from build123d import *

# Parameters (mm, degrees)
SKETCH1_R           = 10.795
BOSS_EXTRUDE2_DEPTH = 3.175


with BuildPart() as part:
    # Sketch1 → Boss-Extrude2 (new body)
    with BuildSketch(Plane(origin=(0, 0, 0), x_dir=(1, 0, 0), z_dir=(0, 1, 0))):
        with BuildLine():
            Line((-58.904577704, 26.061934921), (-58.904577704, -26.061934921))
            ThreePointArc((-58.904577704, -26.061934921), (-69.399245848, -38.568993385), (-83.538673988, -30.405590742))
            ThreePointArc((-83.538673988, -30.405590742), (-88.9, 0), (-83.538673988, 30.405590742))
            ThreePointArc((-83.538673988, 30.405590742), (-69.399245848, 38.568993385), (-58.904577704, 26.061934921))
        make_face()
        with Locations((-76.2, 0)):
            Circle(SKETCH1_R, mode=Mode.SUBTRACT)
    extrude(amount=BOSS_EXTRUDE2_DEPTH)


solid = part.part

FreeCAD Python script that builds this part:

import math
import FreeCAD as App
import Part
import Sketcher
Q = App.Units.Quantity

doc = App.newDocument("Part")
body = doc.addObject("PartDesign::Body", "Body")

# Sketch on XZ plane
sketch1 = body.newObject("Sketcher::SketchObject", "Sketch")
sketch1.AttachmentSupport = (doc.getObject("XZ_Plane"), [""])
sketch1.MapMode = "FlatFace"
sketch1.addGeometry(Part.LineSegment(App.Vector(-59, 26, 0), App.Vector(-59, -26, 0)), False)
sketch1.addGeometry(Part.ArcOfCircle(Part.Circle(App.Vector(-72, -26, 0), App.Vector(0, 0, 1), 13), math.radians(-160), math.radians(0)), False)
sketch1.addGeometry(Part.ArcOfCircle(Part.Circle(App.Vector(0, 0, 0), App.Vector(0, 0, 1), 89), math.radians(160), math.radians(200)), False)
sketch1.addGeometry(Part.ArcOfCircle(Part.Circle(App.Vector(-72, 26, 0), App.Vector(0, 0, 1), 13), math.radians(0), math.radians(160)), False)
sketch1.addGeometry(Part.Circle(App.Vector(-76, 0, 0), App.Vector(0, 0, 1), 11), False)
sketch1.addConstraint(Sketcher.Constraint("Tangent", 0, 2, 1, 2))
sketch1.addConstraint(Sketcher.Constraint("Tangent", 1, 1, 2, 2))
sketch1.addConstraint(Sketcher.Constraint("Tangent", 2, 1, 3, 2))
sketch1.addConstraint(Sketcher.Constraint("Tangent", 3, 1, 0, 1))
sketch1.addConstraint(Sketcher.Constraint("Vertical", 0))
sketch1.addConstraint(Sketcher.Constraint("Coincident", 2, 3, -1, 1))
sketch1.addConstraint(Sketcher.Constraint("Equal", 1, 3))
sketch1.addConstraint(Sketcher.Constraint("PointOnObject", 4, 3, -1))
sketch1.addConstraint(Sketcher.Constraint("Radius", 1, Q("0.5 in")))
sketch1.addConstraint(Sketcher.Constraint("Radius", 2, Q("3.5 in")))
sketch1.addConstraint(Sketcher.Constraint("Diameter", 4, Q("0.85 in")))
sketch1.addConstraint(Sketcher.Constraint("DistanceX", 4, 3, -1, 1, Q("3 in")))
sketch1.addConstraint(Sketcher.Constraint("DistanceY", 0, 2, 0, 1, Q("52.12387 mm")))
pad1 = body.newObject("PartDesign::Pad", "Pad")
pad1.Profile = sketch1
pad1.Length = Q("0.125 in")
pad1.Reversed = True

doc.recompute()
